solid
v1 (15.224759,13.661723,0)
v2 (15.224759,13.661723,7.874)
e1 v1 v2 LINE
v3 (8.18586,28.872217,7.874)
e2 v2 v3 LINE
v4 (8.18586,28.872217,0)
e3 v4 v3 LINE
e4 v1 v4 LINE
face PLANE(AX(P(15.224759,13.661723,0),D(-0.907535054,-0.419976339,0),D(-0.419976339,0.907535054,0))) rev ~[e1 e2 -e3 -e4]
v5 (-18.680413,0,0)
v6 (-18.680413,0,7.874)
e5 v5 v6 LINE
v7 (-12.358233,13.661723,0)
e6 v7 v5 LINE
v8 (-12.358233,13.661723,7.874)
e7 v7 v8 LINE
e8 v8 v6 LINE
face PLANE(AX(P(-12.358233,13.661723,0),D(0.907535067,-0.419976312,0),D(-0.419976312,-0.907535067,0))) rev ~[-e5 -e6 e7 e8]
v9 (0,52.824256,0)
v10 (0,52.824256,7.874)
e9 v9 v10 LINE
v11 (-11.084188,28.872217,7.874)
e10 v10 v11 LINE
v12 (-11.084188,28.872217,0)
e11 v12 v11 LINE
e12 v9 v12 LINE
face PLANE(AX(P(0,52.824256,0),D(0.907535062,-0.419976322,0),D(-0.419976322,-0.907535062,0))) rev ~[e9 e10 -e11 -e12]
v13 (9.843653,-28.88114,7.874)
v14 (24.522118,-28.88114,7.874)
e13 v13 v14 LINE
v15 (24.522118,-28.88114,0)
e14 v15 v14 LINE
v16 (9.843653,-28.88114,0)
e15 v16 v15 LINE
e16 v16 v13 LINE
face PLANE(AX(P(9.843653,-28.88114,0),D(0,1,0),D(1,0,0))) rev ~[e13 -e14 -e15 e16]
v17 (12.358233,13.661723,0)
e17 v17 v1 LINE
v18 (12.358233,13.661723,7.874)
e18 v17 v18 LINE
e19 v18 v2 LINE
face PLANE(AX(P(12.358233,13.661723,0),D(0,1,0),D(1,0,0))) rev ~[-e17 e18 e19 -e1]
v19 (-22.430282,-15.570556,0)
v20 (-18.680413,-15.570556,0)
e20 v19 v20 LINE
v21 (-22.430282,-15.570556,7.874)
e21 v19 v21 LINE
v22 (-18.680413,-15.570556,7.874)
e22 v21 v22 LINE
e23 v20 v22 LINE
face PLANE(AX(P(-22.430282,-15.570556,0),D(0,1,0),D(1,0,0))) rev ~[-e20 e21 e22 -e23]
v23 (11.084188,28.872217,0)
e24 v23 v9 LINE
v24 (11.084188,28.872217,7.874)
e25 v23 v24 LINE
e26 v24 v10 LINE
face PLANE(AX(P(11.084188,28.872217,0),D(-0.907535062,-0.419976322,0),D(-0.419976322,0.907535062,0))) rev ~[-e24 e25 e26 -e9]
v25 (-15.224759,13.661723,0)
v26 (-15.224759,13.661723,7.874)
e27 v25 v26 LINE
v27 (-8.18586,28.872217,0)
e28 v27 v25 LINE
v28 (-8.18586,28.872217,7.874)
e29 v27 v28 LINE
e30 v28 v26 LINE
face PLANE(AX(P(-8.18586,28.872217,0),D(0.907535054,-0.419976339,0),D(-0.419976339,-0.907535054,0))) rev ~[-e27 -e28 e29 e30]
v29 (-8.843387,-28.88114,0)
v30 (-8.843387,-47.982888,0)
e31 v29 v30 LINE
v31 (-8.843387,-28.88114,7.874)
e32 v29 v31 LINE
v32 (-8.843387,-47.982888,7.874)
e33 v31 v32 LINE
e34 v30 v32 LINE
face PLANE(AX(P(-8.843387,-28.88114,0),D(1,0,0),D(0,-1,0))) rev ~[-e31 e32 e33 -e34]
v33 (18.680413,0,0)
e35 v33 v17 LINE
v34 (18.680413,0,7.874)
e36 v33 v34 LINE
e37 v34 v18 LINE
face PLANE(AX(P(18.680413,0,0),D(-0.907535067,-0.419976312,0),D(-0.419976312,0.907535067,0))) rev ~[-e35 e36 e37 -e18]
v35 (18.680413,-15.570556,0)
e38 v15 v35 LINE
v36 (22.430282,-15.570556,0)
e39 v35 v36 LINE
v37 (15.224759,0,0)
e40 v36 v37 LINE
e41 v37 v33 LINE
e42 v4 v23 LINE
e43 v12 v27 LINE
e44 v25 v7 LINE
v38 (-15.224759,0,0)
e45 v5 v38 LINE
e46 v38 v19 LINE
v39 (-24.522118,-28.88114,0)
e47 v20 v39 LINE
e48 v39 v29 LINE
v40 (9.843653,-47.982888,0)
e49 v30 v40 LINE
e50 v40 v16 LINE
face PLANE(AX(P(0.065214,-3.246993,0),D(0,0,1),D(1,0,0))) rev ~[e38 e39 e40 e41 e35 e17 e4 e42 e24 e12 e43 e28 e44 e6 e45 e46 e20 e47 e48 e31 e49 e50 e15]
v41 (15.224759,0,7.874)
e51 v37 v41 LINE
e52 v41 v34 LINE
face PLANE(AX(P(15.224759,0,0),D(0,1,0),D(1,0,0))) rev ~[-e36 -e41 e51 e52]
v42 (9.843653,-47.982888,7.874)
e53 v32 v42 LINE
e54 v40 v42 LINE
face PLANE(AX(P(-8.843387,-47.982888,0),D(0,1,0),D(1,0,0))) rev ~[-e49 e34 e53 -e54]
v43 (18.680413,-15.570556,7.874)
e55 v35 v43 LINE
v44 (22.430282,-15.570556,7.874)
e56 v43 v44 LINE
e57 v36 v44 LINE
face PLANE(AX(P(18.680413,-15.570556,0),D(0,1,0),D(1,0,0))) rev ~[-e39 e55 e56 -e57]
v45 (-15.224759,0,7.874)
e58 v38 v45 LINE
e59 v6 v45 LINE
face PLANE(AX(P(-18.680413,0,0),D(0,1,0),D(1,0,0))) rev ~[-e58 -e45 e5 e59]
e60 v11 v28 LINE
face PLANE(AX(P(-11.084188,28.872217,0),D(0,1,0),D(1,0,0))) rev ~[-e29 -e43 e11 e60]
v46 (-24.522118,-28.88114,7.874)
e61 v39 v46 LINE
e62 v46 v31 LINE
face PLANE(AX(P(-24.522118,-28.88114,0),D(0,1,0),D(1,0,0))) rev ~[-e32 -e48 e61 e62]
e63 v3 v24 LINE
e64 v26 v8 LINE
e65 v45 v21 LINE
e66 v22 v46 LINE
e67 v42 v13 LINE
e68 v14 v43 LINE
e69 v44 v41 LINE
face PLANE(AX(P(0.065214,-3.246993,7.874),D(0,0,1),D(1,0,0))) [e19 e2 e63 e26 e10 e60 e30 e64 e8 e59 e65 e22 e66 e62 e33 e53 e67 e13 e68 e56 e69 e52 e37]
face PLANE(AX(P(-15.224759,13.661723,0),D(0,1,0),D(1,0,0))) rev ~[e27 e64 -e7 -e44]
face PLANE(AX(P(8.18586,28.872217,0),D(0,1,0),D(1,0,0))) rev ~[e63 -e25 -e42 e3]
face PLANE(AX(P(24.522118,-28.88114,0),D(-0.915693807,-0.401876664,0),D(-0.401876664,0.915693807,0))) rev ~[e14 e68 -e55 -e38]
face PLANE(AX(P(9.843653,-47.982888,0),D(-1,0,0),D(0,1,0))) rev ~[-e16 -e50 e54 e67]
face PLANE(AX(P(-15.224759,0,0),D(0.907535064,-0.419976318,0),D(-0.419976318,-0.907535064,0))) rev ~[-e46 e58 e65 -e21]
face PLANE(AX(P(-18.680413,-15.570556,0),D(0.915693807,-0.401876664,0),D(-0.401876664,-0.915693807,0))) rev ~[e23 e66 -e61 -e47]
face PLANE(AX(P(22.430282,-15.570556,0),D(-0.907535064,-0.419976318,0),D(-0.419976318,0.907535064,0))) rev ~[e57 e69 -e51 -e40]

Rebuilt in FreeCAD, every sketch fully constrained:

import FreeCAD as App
import Part
import Sketcher
Q = App.Units.Quantity


def add_polygon(sketch, points):
    """Adds a closed chain of lines whose ends are joined by coincident constraints."""
    first, n = sketch.GeometryCount, len(points)
    for a, b in zip(points, points[1:] + points[:1]):
        sketch.addGeometry(Part.LineSegment(App.Vector(*a, 0), App.Vector(*b, 0)), False)
    for i in range(n):
        sketch.addConstraint(Sketcher.Constraint("Coincident", first + i, 2, first + (i + 1) % n, 1))

doc = App.newDocument("Part")
body = doc.addObject("PartDesign::Body", "Body")

sketch1 = body.newObject("Sketcher::SketchObject", "Sketch")
sketch1.AttachmentSupport = (doc.getObject("XY_Plane"), [""])
sketch1.MapMode = "FlatFace"
add_polygon(sketch1, [(11.1, 28.9), (0, 52.8), (-11.1, 28.9), (-8.2, 28.9), (-15.2, 13.7), (-12.4, 13.7), (-18.7, 0), (-15.2, 0), (-22.4, -15.6), (-18.7, -15.6), (-24.5, -28.9), (-8.8, -28.9), (-8.8, -48), (9.8, -48), (9.8, -28.9), (24.5, -28.9), (18.7, -15.6), (22.4, -15.6), (15.2, 0), (18.7, 0), (12.4, 13.7), (15.2, 13.7), (8.2, 28.9)])
sketch1.addConstraint(Sketcher.Constraint("Horizontal", 2))
sketch1.addConstraint(Sketcher.Constraint("Horizontal", 4))
sketch1.addConstraint(Sketcher.Constraint("Horizontal", 6))
sketch1.addConstraint(Sketcher.Constraint("Horizontal", 8))
sketch1.addConstraint(Sketcher.Constraint("Horizontal", 10))
sketch1.addConstraint(Sketcher.Constraint("Vertical", 11))
sketch1.addConstraint(Sketcher.Constraint("Horizontal", 12))
sketch1.addConstraint(Sketcher.Constraint("Vertical", 13))
sketch1.addConstraint(Sketcher.Constraint("Horizontal", 14))
sketch1.addConstraint(Sketcher.Constraint("Horizontal", 16))
sketch1.addConstraint(Sketcher.Constraint("Horizontal", 18))
sketch1.addConstraint(Sketcher.Constraint("Horizontal", 20))
sketch1.addConstraint(Sketcher.Constraint("Horizontal", 22))
sketch1.addConstraint(Sketcher.Constraint("Symmetric", 6, 2, 17, 2, -1, 1))
sketch1.addConstraint(Sketcher.Constraint("Symmetric", 9, 2, 14, 2, -2))
sketch1.addConstraint(Sketcher.Constraint("Symmetric", 8, 2, 15, 2, -2))
sketch1.addConstraint(Sketcher.Constraint("Symmetric", 5, 2, 18, 2, -2))
sketch1.addConstraint(Sketcher.Constraint("Symmetric", 4, 2, 19, 2, -2))
sketch1.addConstraint(Sketcher.Constraint("Symmetric", 2, 2, 21, 2, -2))
sketch1.addConstraint(Sketcher.Constraint("PointOnObject", 0, 2, -2))
sketch1.addConstraint(Sketcher.Constraint("Parallel", 1, 3))
sketch1.addConstraint(Sketcher.Constraint("Parallel", 3, 5))
sketch1.addConstraint(Sketcher.Constraint("Parallel", 5, 7))
sketch1.addConstraint(Sketcher.Constraint("Parallel", 0, 17))
sketch1.addConstraint(Sketcher.Constraint("Parallel", 17, 19))
sketch1.addConstraint(Sketcher.Constraint("Parallel", 19, 21))
sketch1.addConstraint(Sketcher.Constraint("Vertical", 3, 2, 6, 2))
sketch1.addConstraint(Sketcher.Constraint("Vertical", 5, 2, 8, 2))
sketch1.addConstraint(Sketcher.Constraint("DistanceX", 3, 2, -1, 1, Q("0.5994 in")))
sketch1.addConstraint(Sketcher.Constraint("DistanceX", 8, 1, 8, 2, 3.749869))
sketch1.addConstraint(Sketcher.Constraint("DistanceX", 10, 1, 10, 2, 15.678731))
sketch1.addConstraint(Sketcher.Constraint("DistanceX", 12, 1, 12, 2, 18.68704))
sketch1.addConstraint(Sketcher.Constraint("DistanceY", 11, 2, 11, 1, 19.101748))
sketch1.addConstraint(Sketcher.Constraint("DistanceX", 3, 2, 2, 2, 7.038899))
sketch1.addConstraint(Sketcher.Constraint("DistanceX", 10, 2, 15, 2, 27.5238))
sketch1.addConstraint(Sketcher.Constraint("Distance", 0, 26.392412))
sketch1.addConstraint(Sketcher.Constraint("Distance", 5, 15.053659))
sketch1.addConstraint(Sketcher.Constraint("DistanceX", 2, 1, 2, 2, 2.898328))
sketch1.addConstraint(Sketcher.Constraint("DistanceX", 4, 1, 4, 2, 2.866526))
sketch1.addConstraint(Sketcher.Constraint("DistanceY", 9, 2, -1, 1, 28.88114))
pad1 = body.newObject("PartDesign::Pad", "Pad")
pad1.Profile = sketch1
pad1.Length = Q("0.31 in")

doc.recompute()
